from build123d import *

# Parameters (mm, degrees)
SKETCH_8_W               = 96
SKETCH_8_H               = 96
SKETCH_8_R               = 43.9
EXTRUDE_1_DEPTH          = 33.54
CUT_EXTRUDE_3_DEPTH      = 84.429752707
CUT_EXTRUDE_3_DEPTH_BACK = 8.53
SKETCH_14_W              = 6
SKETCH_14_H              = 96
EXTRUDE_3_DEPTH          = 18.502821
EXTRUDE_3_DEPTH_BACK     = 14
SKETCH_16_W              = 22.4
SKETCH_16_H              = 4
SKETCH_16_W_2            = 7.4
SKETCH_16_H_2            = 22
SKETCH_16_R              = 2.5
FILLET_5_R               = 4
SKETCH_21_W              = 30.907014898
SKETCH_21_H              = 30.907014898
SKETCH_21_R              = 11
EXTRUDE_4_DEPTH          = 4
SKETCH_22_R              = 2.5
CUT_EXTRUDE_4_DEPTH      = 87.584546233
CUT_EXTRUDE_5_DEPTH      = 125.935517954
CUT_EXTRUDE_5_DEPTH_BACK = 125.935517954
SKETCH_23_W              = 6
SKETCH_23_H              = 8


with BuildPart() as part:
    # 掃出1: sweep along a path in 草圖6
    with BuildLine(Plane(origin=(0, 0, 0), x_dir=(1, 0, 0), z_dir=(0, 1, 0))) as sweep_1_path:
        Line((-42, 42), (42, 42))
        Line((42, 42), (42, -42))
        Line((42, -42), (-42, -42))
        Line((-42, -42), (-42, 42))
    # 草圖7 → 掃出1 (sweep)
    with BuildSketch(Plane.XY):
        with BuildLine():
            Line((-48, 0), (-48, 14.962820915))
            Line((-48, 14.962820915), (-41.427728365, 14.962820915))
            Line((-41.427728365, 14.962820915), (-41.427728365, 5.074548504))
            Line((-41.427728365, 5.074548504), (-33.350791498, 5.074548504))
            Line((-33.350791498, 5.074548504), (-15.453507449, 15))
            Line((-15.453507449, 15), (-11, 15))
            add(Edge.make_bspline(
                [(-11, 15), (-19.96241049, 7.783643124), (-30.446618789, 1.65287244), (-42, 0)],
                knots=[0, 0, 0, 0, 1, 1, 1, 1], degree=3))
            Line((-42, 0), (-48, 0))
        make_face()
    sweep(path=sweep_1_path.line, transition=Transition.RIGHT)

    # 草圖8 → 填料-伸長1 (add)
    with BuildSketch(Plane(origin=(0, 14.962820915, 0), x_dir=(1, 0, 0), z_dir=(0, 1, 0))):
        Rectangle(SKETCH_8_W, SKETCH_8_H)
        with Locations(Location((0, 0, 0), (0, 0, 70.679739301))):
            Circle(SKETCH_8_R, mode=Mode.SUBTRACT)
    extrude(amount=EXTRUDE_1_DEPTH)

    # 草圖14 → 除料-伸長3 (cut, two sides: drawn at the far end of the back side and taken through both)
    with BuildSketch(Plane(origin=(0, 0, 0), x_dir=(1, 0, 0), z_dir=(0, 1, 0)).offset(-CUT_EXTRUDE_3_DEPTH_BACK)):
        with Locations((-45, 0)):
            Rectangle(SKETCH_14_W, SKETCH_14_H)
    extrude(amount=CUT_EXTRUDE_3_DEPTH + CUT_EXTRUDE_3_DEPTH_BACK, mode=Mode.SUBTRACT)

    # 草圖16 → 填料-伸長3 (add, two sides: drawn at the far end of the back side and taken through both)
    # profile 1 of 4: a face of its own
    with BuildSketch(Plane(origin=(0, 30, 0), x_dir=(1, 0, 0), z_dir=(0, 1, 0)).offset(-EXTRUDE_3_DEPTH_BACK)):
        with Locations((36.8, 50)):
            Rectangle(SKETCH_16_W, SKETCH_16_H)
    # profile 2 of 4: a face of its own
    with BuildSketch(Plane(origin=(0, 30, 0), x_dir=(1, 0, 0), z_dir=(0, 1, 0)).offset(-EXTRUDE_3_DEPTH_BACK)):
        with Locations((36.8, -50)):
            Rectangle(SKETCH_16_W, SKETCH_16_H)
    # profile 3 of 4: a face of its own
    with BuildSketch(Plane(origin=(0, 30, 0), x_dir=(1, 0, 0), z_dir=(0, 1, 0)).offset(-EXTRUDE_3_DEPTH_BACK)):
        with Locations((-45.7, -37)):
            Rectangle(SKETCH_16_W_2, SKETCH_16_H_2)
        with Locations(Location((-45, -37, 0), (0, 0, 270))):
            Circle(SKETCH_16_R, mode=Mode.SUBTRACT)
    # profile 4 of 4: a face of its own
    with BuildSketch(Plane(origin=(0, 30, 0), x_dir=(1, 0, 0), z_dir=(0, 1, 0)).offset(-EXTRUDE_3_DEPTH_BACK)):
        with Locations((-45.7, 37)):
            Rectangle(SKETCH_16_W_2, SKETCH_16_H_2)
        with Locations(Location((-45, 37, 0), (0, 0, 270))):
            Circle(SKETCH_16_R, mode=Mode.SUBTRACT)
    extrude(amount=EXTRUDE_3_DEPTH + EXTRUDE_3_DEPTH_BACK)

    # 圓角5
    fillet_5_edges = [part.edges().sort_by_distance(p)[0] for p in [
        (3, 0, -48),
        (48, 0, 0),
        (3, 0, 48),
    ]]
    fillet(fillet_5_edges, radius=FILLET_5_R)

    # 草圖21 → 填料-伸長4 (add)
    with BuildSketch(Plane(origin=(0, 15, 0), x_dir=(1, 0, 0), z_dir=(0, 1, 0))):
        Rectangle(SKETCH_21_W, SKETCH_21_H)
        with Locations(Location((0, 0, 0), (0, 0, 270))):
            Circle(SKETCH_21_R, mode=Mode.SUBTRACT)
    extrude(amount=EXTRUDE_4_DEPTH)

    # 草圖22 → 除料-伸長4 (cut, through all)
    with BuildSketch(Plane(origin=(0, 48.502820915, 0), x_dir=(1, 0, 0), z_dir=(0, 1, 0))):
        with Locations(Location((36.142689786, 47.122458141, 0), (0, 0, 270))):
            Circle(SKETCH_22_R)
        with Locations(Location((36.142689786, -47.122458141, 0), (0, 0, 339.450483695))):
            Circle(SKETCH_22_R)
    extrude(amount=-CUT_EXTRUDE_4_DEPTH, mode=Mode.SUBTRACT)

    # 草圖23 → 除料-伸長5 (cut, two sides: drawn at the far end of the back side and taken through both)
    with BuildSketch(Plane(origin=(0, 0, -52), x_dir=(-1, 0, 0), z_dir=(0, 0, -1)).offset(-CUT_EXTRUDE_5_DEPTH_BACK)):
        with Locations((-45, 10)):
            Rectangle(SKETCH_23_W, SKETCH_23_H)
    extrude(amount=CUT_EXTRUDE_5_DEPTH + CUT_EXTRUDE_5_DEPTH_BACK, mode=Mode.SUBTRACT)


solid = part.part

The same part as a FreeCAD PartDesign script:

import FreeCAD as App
import Part
import Sketcher
from FreeCAD import Vector
Q = App.Units.Quantity


def edges_at(feature, points):
    """Names of the edges that pass closest to the given points."""
    edges = feature.Shape.Edges
    near = lambda p: min(range(len(edges)), key=lambda i: edges[i].distToShape(Part.Vertex(*p))[0])
    return sorted({f"Edge{near(p) + 1}" for p in points})

doc = App.newDocument("Part")
body = doc.addObject("PartDesign::Body", "Body")

# Sketch on XY plane
sketch1 = body.newObject("Sketcher::SketchObject", "Sketch")
sketch1.AttachmentSupport = (doc.getObject("XY_Plane"), [""])
sketch1.MapMode = "FlatFace"
sketch1.addGeometry(Part.LineSegment(Vector(-48, 14.962821, 0), Vector(-48, 0, 0)), False)
sketch1.addGeometry(Part.LineSegment(Vector(-48, 0, 0), Vector(-42, 0, 0)), False)
sketch1.addGeometry(Part.BSplineCurve([Vector(-11, 15, 0), Vector(-19.96241, 7.783643, 0), Vector(-30.446619, 1.652872, 0), Vector(-42, 0, 0)], [4, 4], [0, 1], False, 3, [1, 1, 1, 1], False), False)
sketch1.addGeometry(Part.LineSegment(Vector(-11, 15, 0), Vector(-15.453507, 15, 0)), False)
sketch1.addGeometry(Part.LineSegment(Vector(-15.453507, 15, 0), Vector(-33.350791, 5.074549, 0)), False)
sketch1.addGeometry(Part.LineSegment(Vector(-33.350791, 5.074549, 0), Vector(-41.427728, 5.074549, 0)), False)
sketch1.addGeometry(Part.LineSegment(Vector(-41.427728, 5.074549, 0), Vector(-41.427728, 14.962821, 0)), False)
sketch1.addGeometry(Part.LineSegment(Vector(-41.427728, 14.962821, 0), Vector(-48, 14.962821, 0)), False)
sketch1.addConstraint(Sketcher.Constraint("Block", 2))
sketch1.addConstraint(Sketcher.Constraint("Coincident", 0, 2, 1, 1))
sketch1.addConstraint(Sketcher.Constraint("Coincident", 1, 2, 2, 2))
sketch1.addConstraint(Sketcher.Constraint("Coincident", 2, 1, 3, 1))
sketch1.addConstraint(Sketcher.Constraint("Coincident", 3, 2, 4, 1))
sketch1.addConstraint(Sketcher.Constraint("Coincident", 4, 2, 5, 1))
sketch1.addConstraint(Sketcher.Constraint("Coincident", 5, 2, 6, 1))
sketch1.addConstraint(Sketcher.Constraint("Coincident", 6, 2, 7, 1))
sketch1.addConstraint(Sketcher.Constraint("Coincident", 7, 2, 0, 1))
sketch1.addConstraint(Sketcher.Constraint("Vertical", 0))
sketch1.addConstraint(Sketcher.Constraint("Horizontal", 1))
sketch1.addConstraint(Sketcher.Constraint("Horizontal", 3))
sketch1.addConstraint(Sketcher.Constraint("Horizontal", 5))
sketch1.addConstraint(Sketcher.Constraint("Vertical", 6))
sketch1.addConstraint(Sketcher.Constraint("Horizontal", 7))
sketch1.addConstraint(Sketcher.Constraint("DistanceX", 1, 1, 1, 2, Q("6 mm")))
sketch1.addConstraint(Sketcher.Constraint("DistanceX", 7, 2, 7, 1, Q("6.572272 mm")))
sketch1.addConstraint(Sketcher.Constraint("DistanceY", 0, 2, 0, 1, Q("14.962821 mm")))
sketch1.addConstraint(Sketcher.Constraint("DistanceX", 3, 2, 3, 1, Q("4.453507 mm")))
sketch1.addConstraint(Sketcher.Constraint("DistanceX", 5, 2, 5, 1, Q("8.076937 mm")))
sketch1.addConstraint(Sketcher.Constraint("DistanceY", 6, 1, 6, 2, Q("9.888272 mm")))

# Sketch on XZ plane
sketch2 = body.newObject("Sketcher::SketchObject", "Sketch001")
sketch2.AttachmentSupport = (doc.getObject("XZ_Plane"), [""])
sketch2.MapMode = "FlatFace"
sketch2.addGeometry(Part.LineSegment(Vector(-42, -42, 0), Vector(42, -42, 0)), False)
sketch2.addGeometry(Part.LineSegment(Vector(42, -42, 0), Vector(42, 42, 0)), False)
sketch2.addGeometry(Part.LineSegment(Vector(42, 42, 0), Vector(-42, 42, 0)), False)
sketch2.addGeometry(Part.LineSegment(Vector(-42, 42, 0), Vector(-42, -42, 0)), False)
sketch2.addConstraint(Sketcher.Constraint("Coincident", 0, 2, 1, 1))
sketch2.addConstraint(Sketcher.Constraint("Coincident", 1, 2, 2, 1))
sketch2.addConstraint(Sketcher.Constraint("Coincident", 2, 2, 3, 1))
sketch2.addConstraint(Sketcher.Constraint("Coincident", 3, 2, 0, 1))
sketch2.addConstraint(Sketcher.Constraint("Horizontal", 0))
sketch2.addConstraint(Sketcher.Constraint("Vertical", 1))
sketch2.addConstraint(Sketcher.Constraint("Horizontal", 2))
sketch2.addConstraint(Sketcher.Constraint("Vertical", 3))
sketch2.addConstraint(Sketcher.Constraint("Symmetric", 0, 2, 2, 2, -1, 1))
sketch2.addConstraint(Sketcher.Constraint("Equal", 2, 1))
sketch2.addConstraint(Sketcher.Constraint("DistanceX", 0, 1, 0, 2, Q("84 mm")))
doc.recompute()

additivepipe = body.newObject("PartDesign::AdditivePipe", "AdditivePipe")
additivepipe.Profile = sketch1
additivepipe.Spine = (sketch2, ["Edge1", "Edge2", "Edge3", "Edge4"])
additivepipe.Transition = "Right corner"

# Sketch on XZ plane
sketch3 = body.newObject("Sketcher::SketchObject", "Sketch002")
sketch3.AttachmentSupport = (doc.getObject("XZ_Plane"), [""])
sketch3.MapMode = "FlatFace"
sketch3.AttachmentOffset = App.Placement(Vector(0, 0, -14.962821), App.Rotation())
sketch3.addGeometry(Part.LineSegment(Vector(-48, -48, 0), Vector(-48, 48, 0)), False)
sketch3.addGeometry(Part.LineSegment(Vector(-48, 48, 0), Vector(48, 48, 0)), False)
sketch3.addGeometry(Part.LineSegment(Vector(48, 48, 0), Vector(48, -48, 0)), False)
sketch3.addGeometry(Part.LineSegment(Vector(48, -48, 0), Vector(-48, -48, 0)), False)
sketch3.addGeometry(Part.Circle(Vector(0, 0, 0), Vector(0, 0, 1), 44), False)
sketch3.addConstraint(Sketcher.Constraint("Coincident", 0, 2, 1, 1))
sketch3.addConstraint(Sketcher.Constraint("Coincident", 1, 2, 2, 1))
sketch3.addConstraint(Sketcher.Constraint("Coincident", 2, 2, 3, 1))
sketch3.addConstraint(Sketcher.Constraint("Coincident", 3, 2, 0, 1))
sketch3.addConstraint(Sketcher.Constraint("Vertical", 0))
sketch3.addConstraint(Sketcher.Constraint("Horizontal", 1))
sketch3.addConstraint(Sketcher.Constraint("Vertical", 2))
sketch3.addConstraint(Sketcher.Constraint("Horizontal", 3))
sketch3.addConstraint(Sketcher.Constraint("Coincident", 4, 3, -1, 1))
sketch3.addConstraint(Sketcher.Constraint("Symmetric", 0, 2, 2, 2, -1, 1))
sketch3.addConstraint(Sketcher.Constraint("Equal", 3, 0))
sketch3.addConstraint(Sketcher.Constraint("Diameter", 4, Q("87.8 mm")))
sketch3.addConstraint(Sketcher.Constraint("DistanceX", 1, 1, 1, 2, Q("96 mm")))
pad1 = body.newObject("PartDesign::Pad", "Pad")
pad1.Profile = sketch3
pad1.Length = 33.54
pad1.Reversed = True

# Sketch on XZ plane
sketch4 = body.newObject("Sketcher::SketchObject", "Sketch003")
sketch4.AttachmentSupport = (doc.getObject("XZ_Plane"), [""])
sketch4.MapMode = "FlatFace"
sketch4.addGeometry(Part.LineSegment(Vector(-48, -48, 0), Vector(-48, 48, 0)), False)
sketch4.addGeometry(Part.LineSegment(Vector(-48, 48, 0), Vector(-42, 48, 0)), False)
sketch4.addGeometry(Part.LineSegment(Vector(-42, 48, 0), Vector(-42, -48, 0)), False)
sketch4.addGeometry(Part.LineSegment(Vector(-42, -48, 0), Vector(-48, -48, 0)), False)
sketch4.addConstraint(Sketcher.Constraint("Coincident", 0, 2, 1, 1))
sketch4.addConstraint(Sketcher.Constraint("Coincident", 1, 2, 2, 1))
sketch4.addConstraint(Sketcher.Constraint("Coincident", 2, 2, 3, 1))
sketch4.addConstraint(Sketcher.Constraint("Coincident", 3, 2, 0, 1))
sketch4.addConstraint(Sketcher.Constraint("Vertical", 0))
sketch4.addConstraint(Sketcher.Constraint("Horizontal", 1))
sketch4.addConstraint(Sketcher.Constraint("Vertical", 2))
sketch4.addConstraint(Sketcher.Constraint("Horizontal", 3))
sketch4.addConstraint(Sketcher.Constraint("DistanceX", 1, 1, 1, 2, Q("6 mm")))
sketch4.addConstraint(Sketcher.Constraint("DistanceY", 0, 1, 0, 2, Q("96 mm")))
sketch4.addConstraint(Sketcher.Constraint("DistanceX", 0, 2, -1, 1, Q("48 mm")))
sketch4.addConstraint(Sketcher.Constraint("DistanceY", -1, 1, 0, 2, Q("48 mm")))
pocket1 = body.newObject("PartDesign::Pocket", "Pocket")
pocket1.Profile = sketch4
pocket1.Type = "ThroughAll"
pocket1.Midplane = True

# Sketch on XZ plane
sketch5 = body.newObject("Sketcher::SketchObject", "Sketch004")
sketch5.AttachmentSupport = (doc.getObject("XZ_Plane"), [""])
sketch5.MapMode = "FlatFace"
sketch5.AttachmentOffset = App.Placement(Vector(0, 0, -30), App.Rotation())
sketch5.addGeometry(Part.LineSegment(Vector(25.6, -52, 0), Vector(25.6, -48, 0)), False)
sketch5.addGeometry(Part.LineSegment(Vector(25.6, -48, 0), Vector(48, -48, 0)), False)
sketch5.addGeometry(Part.LineSegment(Vector(48, -48, 0), Vector(48, -52, 0)), False)
sketch5.addGeometry(Part.LineSegment(Vector(48, -52, 0), Vector(25.6, -52, 0)), False)
sketch5.addGeometry(Part.LineSegment(Vector(25.6, 48, 0), Vector(25.6, 52, 0)), False)
sketch5.addGeometry(Part.LineSegment(Vector(25.6, 52, 0), Vector(48, 52, 0)), False)
sketch5.addGeometry(Part.LineSegment(Vector(48, 52, 0), Vector(48, 48, 0)), False)
sketch5.addGeometry(Part.LineSegment(Vector(48, 48, 0), Vector(25.6, 48, 0)), False)
sketch5.addGeometry(Part.LineSegment(Vector(-49.4, 26, 0), Vector(-49.4, 48, 0)), False)
sketch5.addGeometry(Part.LineSegment(Vector(-49.4, 48, 0), Vector(-42, 48, 0)), False)
sketch5.addGeometry(Part.LineSegment(Vector(-42, 48, 0), Vector(-42, 26, 0)), False)
sketch5.addGeometry(Part.LineSegment(Vector(-42, 26, 0), Vector(-49.4, 26, 0)), False)
sketch5.addGeometry(Part.Circle(Vector(-45, 37, 0), Vector(0, 0, 1), 2.5), False)
sketch5.addGeometry(Part.LineSegment(Vector(-49.4, -48, 0), Vector(-49.4, -26, 0)), False)
sketch5.addGeometry(Part.LineSegment(Vector(-49.4, -26, 0), Vector(-42, -26, 0)), False)
sketch5.addGeometry(Part.LineSegment(Vector(-42, -26, 0), Vector(-42, -48, 0)), False)
sketch5.addGeometry(Part.LineSegment(Vector(-42, -48, 0), Vector(-49.4, -48, 0)), False)
sketch5.addGeometry(Part.Circle(Vector(-45, -37, 0), Vector(0, 0, 1), 2.5), False)
sketch5.addConstraint(Sketcher.Constraint("Coincident", 0, 2, 1, 1))
sketch5.addConstraint(Sketcher.Constraint("Coincident", 1, 2, 2, 1))
sketch5.addConstraint(Sketcher.Constraint("Coincident", 2, 2, 3, 1))
sketch5.addConstraint(Sketcher.Constraint("Coincident", 3, 2, 0, 1))
sketch5.addConstraint(Sketcher.Constraint("Coincident", 4, 2, 5, 1))
sketch5.addConstraint(Sketcher.Constraint("Coincident", 5, 2, 6, 1))
sketch5.addConstraint(Sketcher.Constraint("Coincident", 6, 2, 7, 1))
sketch5.addConstraint(Sketcher.Constraint("Coincident", 7, 2, 4, 1))
sketch5.addConstraint(Sketcher.Constraint("Coincident", 8, 2, 9, 1))
sketch5.addConstraint(Sketcher.Constraint("Coincident", 9, 2, 10, 1))
sketch5.addConstraint(Sketcher.Constraint("Coincident", 10, 2, 11, 1))
sketch5.addConstraint(Sketcher.Constraint("Coincident", 11, 2, 8, 1))
sketch5.addConstraint(Sketcher.Constraint("Coincident", 13, 2, 14, 1))
sketch5.addConstraint(Sketcher.Constraint("Coincident", 14, 2, 15, 1))
sketch5.addConstraint(Sketcher.Constraint("Coincident", 15, 2, 16, 1))
sketch5.addConstraint(Sketcher.Constraint("Coincident", 16, 2, 13, 1))
sketch5.addConstraint(Sketcher.Constraint("Vertical", 0))
sketch5.addConstraint(Sketcher.Constraint("Horizontal", 1))
sketch5.addConstraint(Sketcher.Constraint("Vertical", 2))
sketch5.addConstraint(Sketcher.Constraint("Horizontal", 3))
sketch5.addConstraint(Sketcher.Constraint("Vertical", 4))
sketch5.addConstraint(Sketcher.Constraint("Horizontal", 5))
sketch5.addConstraint(Sketcher.Constraint("Vertical", 6))
sketch5.addConstraint(Sketcher.Constraint("Horizontal", 7))
sketch5.addConstraint(Sketcher.Constraint("Vertical", 8))
sketch5.addConstraint(Sketcher.Constraint("Horizontal", 9))
sketch5.addConstraint(Sketcher.Constraint("Vertical", 10))
sketch5.addConstraint(Sketcher.Constraint("Horizontal", 11))
sketch5.addConstraint(Sketcher.Constraint("Vertical", 13))
sketch5.addConstraint(Sketcher.Constraint("Horizontal", 14))
sketch5.addConstraint(Sketcher.Constraint("Vertical", 15))
sketch5.addConstraint(Sketcher.Constraint("Horizontal", 16))
sketch5.addConstraint(Sketcher.Constraint("Equal", 12, 17))
sketch5.addConstraint(Sketcher.Constraint("Symmetric", 12, 3, 17, 3, -1))
sketch5.addConstraint(Sketcher.Constraint("Symmetric", 3, 2, 4, 2, -1))
sketch5.addConstraint(Sketcher.Constraint("Symmetric", 1, 2, 6, 2, -1))
sketch5.addConstraint(Sketcher.Constraint("Symmetric", 11, 2, 13, 2, -1))
sketch5.addConstraint(Sketcher.Constraint("Symmetric", 9, 2, 15, 2, -1))
sketch5.addConstraint(Sketcher.Constraint("Horizontal", 7, 2, 8, 2))
sketch5.addConstraint(Sketcher.Constraint("Diameter", 12, Q("5 mm")))
sketch5.addConstraint(Sketcher.Constraint("DistanceY", 0, 1, 0, 2, Q("4 mm")))
sketch5.addConstraint(Sketcher.Constraint("DistanceY", 8, 1, 8, 2, Q("22 mm")))
sketch5.addConstraint(Sketcher.Constraint("DistanceX", 1, 1, 1, 2, Q("22.4 mm")))
sketch5.addConstraint(Sketcher.Constraint("DistanceX", 9, 1, 9, 2, Q("7.4 mm")))
sketch5.addConstraint(Sketcher.Constraint("DistanceX", 12, 3, -1, 1, Q("45 mm")))
sketch5.addConstraint(Sketcher.Constraint("DistanceY", -1, 1, 12, 3, Q("37 mm")))
sketch5.addConstraint(Sketcher.Constraint("DistanceY", 0, 2, -1, 1, Q("48 mm")))
sketch5.addConstraint(Sketcher.Constraint("DistanceX", -1, 1, 1, 2, Q("48 mm")))
sketch5.addConstraint(Sketcher.Constraint("DistanceX", 9, 2, -1, 1, Q("42 mm")))
pad2 = body.newObject("PartDesign::Pad", "Pad001")
pad2.Profile = sketch5
pad2.Type = "TwoLengths"
pad2.Length = 18.502821
pad2.Length2 = 14
pad2.Reversed = True
doc.recompute()

fillet = body.newObject("PartDesign::Fillet", "Fillet")
fillet.Base = (pad2, edges_at(pad2, [(3, 0, -48), (48, 0, 0), (3, 0, 48)]))
fillet.Radius = 4

# Sketch on XZ plane
sketch6 = body.newObject("Sketcher::SketchObject", "Sketch005")
sketch6.AttachmentSupport = (doc.getObject("XZ_Plane"), [""])
sketch6.MapMode = "FlatFace"
sketch6.AttachmentOffset = App.Placement(Vector(0, 0, -15), App.Rotation())
sketch6.addGeometry(Part.LineSegment(Vector(-15, -15, 0), Vector(-15, 15, 0)), False)
sketch6.addGeometry(Part.LineSegment(Vector(-15, 15, 0), Vector(15, 15, 0)), False)
sketch6.addGeometry(Part.LineSegment(Vector(15, 15, 0), Vector(15, -15, 0)), False)
sketch6.addGeometry(Part.LineSegment(Vector(15, -15, 0), Vector(-15, -15, 0)), False)
sketch6.addGeometry(Part.Circle(Vector(0, 0, 0), Vector(0, 0, 1), 11), False)
sketch6.addConstraint(Sketcher.Constraint("Coincident", 0, 2, 1, 1))
sketch6.addConstraint(Sketcher.Constraint("Coincident", 1, 2, 2, 1))
sketch6.addConstraint(Sketcher.Constraint("Coincident", 2, 2, 3, 1))
sketch6.addConstraint(Sketcher.Constraint("Coincident", 3, 2, 0, 1))
sketch6.addConstraint(Sketcher.Constraint("Vertical", 0))
sketch6.addConstraint(Sketcher.Constraint("Horizontal", 1))
sketch6.addConstraint(Sketcher.Constraint("Vertical", 2))
sketch6.addConstraint(Sketcher.Constraint("Horizontal", 3))
sketch6.addConstraint(Sketcher.Constraint("Coincident", 4, 3, -1, 1))
sketch6.addConstraint(Sketcher.Constraint("Symmetric", 0, 2, 2, 2, -1, 1))
sketch6.addConstraint(Sketcher.Constraint("Equal", 3, 0))
sketch6.addConstraint(Sketcher.Constraint("Diameter", 4, Q("22 mm")))
sketch6.addConstraint(Sketcher.Constraint("DistanceX", 1, 1, 1, 2, Q("30.907015 mm")))
pad3 = body.newObject("PartDesign::Pad", "Pad002")
pad3.Profile = sketch6
pad3.Length = 4
pad3.Reversed = True

# Sketch on XZ plane
sketch7 = body.newObject("Sketcher::SketchObject", "Sketch006")
sketch7.AttachmentSupport = (doc.getObject("XZ_Plane"), [""])
sketch7.MapMode = "FlatFace"
sketch7.AttachmentOffset = App.Placement(Vector(0, 0, -48.502821), App.Rotation())
sketch7.addGeometry(Part.Circle(Vector(36.1, -47.1, 0), Vector(0, 0, 1), 2.5), False)
sketch7.addGeometry(Part.Circle(Vector(36.1, 47.1, 0), Vector(0, 0, 1), 2.5), False)
sketch7.addConstraint(Sketcher.Constraint("Equal", 0, 1))
sketch7.addConstraint(Sketcher.Constraint("Symmetric", 0, 3, 1, 3, -1))
sketch7.addConstraint(Sketcher.Constraint("Diameter", 0, Q("5 mm")))
sketch7.addConstraint(Sketcher.Constraint("DistanceX", -1, 1, 0, 3, Q("36.14269 mm")))
sketch7.addConstraint(Sketcher.Constraint("DistanceY", 0, 3, -1, 1, Q("47.122458 mm")))
pocket2 = body.newObject("PartDesign::Pocket", "Pocket001")
pocket2.Profile = sketch7
pocket2.Type = "ThroughAll"
pocket2.Reversed = True

# Sketch on XY plane
sketch8 = body.newObject("Sketcher::SketchObject", "Sketch007")
sketch8.AttachmentSupport = (doc.getObject("XY_Plane"), [""])
sketch8.MapMode = "FlatFace"
sketch8.AttachmentOffset = App.Placement(Vector(0, 0, -52), App.Rotation())
sketch8.addGeometry(Part.LineSegment(Vector(48, 14, 0), Vector(48, 6, 0)), False)
sketch8.addGeometry(Part.LineSegment(Vector(48, 6, 0), Vector(42, 6, 0)), False)
sketch8.addGeometry(Part.LineSegment(Vector(42, 6, 0), Vector(42, 14, 0)), False)
sketch8.addGeometry(Part.LineSegment(Vector(42, 14, 0), Vector(48, 14, 0)), False)
sketch8.addConstraint(Sketcher.Constraint("Coincident", 0, 2, 1, 1))
sketch8.addConstraint(Sketcher.Constraint("Coincident", 1, 2, 2, 1))
sketch8.addConstraint(Sketcher.Constraint("Coincident", 2, 2, 3, 1))
sketch8.addConstraint(Sketcher.Constraint("Coincident", 3, 2, 0, 1))
sketch8.addConstraint(Sketcher.Constraint("Vertical", 0))
sketch8.addConstraint(Sketcher.Constraint("Horizontal", 1))
sketch8.addConstraint(Sketcher.Constraint("Vertical", 2))
sketch8.addConstraint(Sketcher.Constraint("Horizontal", 3))
sketch8.addConstraint(Sketcher.Constraint("DistanceX", 1, 2, 1, 1, Q("6 mm")))
sketch8.addConstraint(Sketcher.Constraint("DistanceY", 0, 2, 0, 1, Q("8 mm")))
sketch8.addConstraint(Sketcher.Constraint("DistanceX", -1, 1, 0, 2, Q("48 mm")))
sketch8.addConstraint(Sketcher.Constraint("DistanceY", -1, 1, 0, 2, Q("6 mm")))
pocket3 = body.newObject("PartDesign::Pocket", "Pocket002")
pocket3.Profile = sketch8
pocket3.Type = "ThroughAll"
pocket3.Midplane = True

doc.recompute()
